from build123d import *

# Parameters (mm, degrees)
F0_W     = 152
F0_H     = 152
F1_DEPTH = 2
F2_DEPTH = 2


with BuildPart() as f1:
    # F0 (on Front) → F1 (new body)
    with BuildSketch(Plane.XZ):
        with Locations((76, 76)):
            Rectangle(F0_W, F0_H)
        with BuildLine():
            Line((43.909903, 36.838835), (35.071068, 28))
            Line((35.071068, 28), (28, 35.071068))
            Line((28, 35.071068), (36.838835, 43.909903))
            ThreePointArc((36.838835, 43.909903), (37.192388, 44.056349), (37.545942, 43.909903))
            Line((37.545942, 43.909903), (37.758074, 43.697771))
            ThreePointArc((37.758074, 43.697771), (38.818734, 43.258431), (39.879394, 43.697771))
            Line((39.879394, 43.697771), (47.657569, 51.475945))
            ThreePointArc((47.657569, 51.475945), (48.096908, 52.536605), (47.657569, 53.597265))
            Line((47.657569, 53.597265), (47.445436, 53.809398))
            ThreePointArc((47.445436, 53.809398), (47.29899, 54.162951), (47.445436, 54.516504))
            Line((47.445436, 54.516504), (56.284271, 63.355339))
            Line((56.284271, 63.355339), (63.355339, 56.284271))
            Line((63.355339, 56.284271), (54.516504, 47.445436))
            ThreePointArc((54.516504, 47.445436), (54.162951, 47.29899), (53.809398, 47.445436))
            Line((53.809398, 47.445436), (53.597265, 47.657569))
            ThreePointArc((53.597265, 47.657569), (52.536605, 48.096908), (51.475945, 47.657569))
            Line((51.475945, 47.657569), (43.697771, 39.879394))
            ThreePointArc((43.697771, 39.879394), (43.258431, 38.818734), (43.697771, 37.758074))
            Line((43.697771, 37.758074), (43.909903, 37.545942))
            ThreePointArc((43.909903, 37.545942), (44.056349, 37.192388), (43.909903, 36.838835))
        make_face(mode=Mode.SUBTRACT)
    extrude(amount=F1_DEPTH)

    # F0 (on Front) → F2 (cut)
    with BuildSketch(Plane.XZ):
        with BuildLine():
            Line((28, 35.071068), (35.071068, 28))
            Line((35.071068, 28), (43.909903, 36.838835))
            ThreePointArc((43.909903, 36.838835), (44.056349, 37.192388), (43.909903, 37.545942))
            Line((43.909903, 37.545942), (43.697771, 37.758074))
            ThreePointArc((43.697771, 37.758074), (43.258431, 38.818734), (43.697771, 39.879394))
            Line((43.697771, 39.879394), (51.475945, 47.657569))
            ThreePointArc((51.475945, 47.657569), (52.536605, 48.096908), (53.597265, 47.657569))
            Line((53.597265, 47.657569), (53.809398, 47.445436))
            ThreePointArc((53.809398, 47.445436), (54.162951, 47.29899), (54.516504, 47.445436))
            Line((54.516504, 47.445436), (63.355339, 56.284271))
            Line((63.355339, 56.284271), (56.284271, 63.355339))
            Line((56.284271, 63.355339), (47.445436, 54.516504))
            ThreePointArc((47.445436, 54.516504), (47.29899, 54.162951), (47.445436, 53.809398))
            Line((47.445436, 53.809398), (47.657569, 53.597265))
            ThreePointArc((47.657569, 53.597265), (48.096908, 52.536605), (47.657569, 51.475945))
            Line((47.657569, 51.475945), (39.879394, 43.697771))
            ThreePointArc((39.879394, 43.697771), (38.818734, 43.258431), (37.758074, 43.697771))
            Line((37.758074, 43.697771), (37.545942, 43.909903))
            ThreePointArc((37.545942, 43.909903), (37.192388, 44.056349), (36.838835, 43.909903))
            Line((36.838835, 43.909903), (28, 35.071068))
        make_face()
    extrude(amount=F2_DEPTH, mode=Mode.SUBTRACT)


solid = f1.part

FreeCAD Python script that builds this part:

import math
import FreeCAD as App
import Part
import Sketcher
from FreeCAD import Vector
Q = App.Units.Quantity

doc = App.newDocument("Part")
body = doc.addObject("PartDesign::Body", "Body")

sketch1 = body.newObject("Sketcher::SketchObject", "Sketch")
sketch1.AttachmentSupport = (doc.getObject("XZ_Plane"), [""])
sketch1.MapMode = "FlatFace"
sketch1.addGeometry([
    Part.LineSegment(Vector(0, 152, 0), Vector(0, 0, 0)),
    Part.LineSegment(Vector(0, 0, 0), Vector(152, 0, 0)),
    Part.LineSegment(Vector(152, 0, 0), Vector(152, 152, 0)),
    Part.LineSegment(Vector(152, 152, 0), Vector(0, 152, 0)),
    Part.ArcOfCircle(Part.Circle(Vector(43.556347, 37.192388, 0), Vector(0, 0, 1), 0.500002), math.radians(-44.999819), math.radians(44.999819)),
    Part.LineSegment(Vector(43.909903, 36.838835, 0), Vector(35.071068, 28, 0)),
    Part.LineSegment(Vector(35.071068, 28, 0), Vector(28, 35.071068, 0)),
    Part.LineSegment(Vector(28, 35.071068, 0), Vector(36.838835, 43.909903, 0)),
    Part.ArcOfCircle(Part.Circle(Vector(37.192388, 43.556347, 0), Vector(0, 0, 1), 0.500002), math.radians(45.000181), math.radians(134.999819)),
    Part.LineSegment(Vector(37.545942, 43.909903, 0), Vector(37.758074, 43.697771, 0)),
    Part.ArcOfCircle(Part.Circle(Vector(38.818734, 44.75843, 0), Vector(0, 0, 1), 1.499999), math.radians(-135.000022), math.radians(-44.999978)),
    Part.LineSegment(Vector(39.879394, 43.697771, 0), Vector(47.657569, 51.475945, 0)),
    Part.ArcOfCircle(Part.Circle(Vector(46.596906, 52.536605, 0), Vector(0, 0, 1), 1.500002), math.radians(-44.99993), math.radians(44.99993)),
    Part.LineSegment(Vector(47.657569, 53.597265, 0), Vector(47.445436, 53.809398, 0)),
    Part.ArcOfCircle(Part.Circle(Vector(47.798991, 54.162951, 0), Vector(0, 0, 1), 0.500001), math.radians(135.000124), math.radians(224.999876)),
    Part.LineSegment(Vector(47.445436, 54.516504, 0), Vector(56.284271, 63.355339, 0)),
    Part.LineSegment(Vector(56.284271, 63.355339, 0), Vector(63.355339, 56.284271, 0)),
    Part.LineSegment(Vector(63.355339, 56.284271, 0), Vector(54.516504, 47.445436, 0)),
    Part.ArcOfCircle(Part.Circle(Vector(54.162951, 47.798991, 0), Vector(0, 0, 1), 0.500001), math.radians(-134.999876), math.radians(-45.000124)),
    Part.LineSegment(Vector(53.809398, 47.445436, 0), Vector(53.597265, 47.657569, 0)),
    Part.ArcOfCircle(Part.Circle(Vector(52.536605, 46.596906, 0), Vector(0, 0, 1), 1.500002), math.radians(45.00007), math.radians(134.99993)),
    Part.LineSegment(Vector(51.475945, 47.657569, 0), Vector(43.697771, 39.879394, 0)),
    Part.ArcOfCircle(Part.Circle(Vector(44.75843, 38.818734, 0), Vector(0, 0, 1), 1.499999), math.radians(134.999978), math.radians(225.000022)),
    Part.LineSegment(Vector(43.697771, 37.758074, 0), Vector(43.909903, 37.545942, 0)),
], False)
sketch1.addConstraint([
    Sketcher.Constraint("Coincident", 0, 2, 1, 1),
    Sketcher.Constraint("Coincident", 1, 2, 2, 1),
    Sketcher.Constraint("Coincident", 2, 2, 3, 1),
    Sketcher.Constraint("Coincident", 3, 2, 0, 1),
    Sketcher.Constraint("Coincident", 4, 1, 5, 1),
    Sketcher.Constraint("Coincident", 5, 2, 6, 1),
    Sketcher.Constraint("Coincident", 6, 2, 7, 1),
    Sketcher.Constraint("Coincident", 7, 2, 8, 2),
    Sketcher.Constraint("Coincident", 8, 1, 9, 1),
    Sketcher.Constraint("Tangent", 9, 2, 10, 1),
    Sketcher.Constraint("Tangent", 10, 2, 11, 1),
    Sketcher.Constraint("Tangent", 11, 2, 12, 1),
    Sketcher.Constraint("Tangent", 12, 2, 13, 1),
    Sketcher.Constraint("Coincident", 13, 2, 14, 2),
    Sketcher.Constraint("Coincident", 14, 1, 15, 1),
    Sketcher.Constraint("Coincident", 15, 2, 16, 1),
    Sketcher.Constraint("Coincident", 16, 2, 17, 1),
    Sketcher.Constraint("Coincident", 17, 2, 18, 2),
    Sketcher.Constraint("Coincident", 18, 1, 19, 1),
    Sketcher.Constraint("Tangent", 19, 2, 20, 1),
    Sketcher.Constraint("Tangent", 20, 2, 21, 1),
    Sketcher.Constraint("Tangent", 21, 2, 22, 1),
    Sketcher.Constraint("Tangent", 22, 2, 23, 1),
    Sketcher.Constraint("Coincident", 23, 2, 4, 2),
    Sketcher.Constraint("Vertical", 0),
    Sketcher.Constraint("Horizontal", 1),
    Sketcher.Constraint("Vertical", 2),
    Sketcher.Constraint("Horizontal", 3),
    Sketcher.Constraint("Coincident", 0, 2, -1, 1),
    Sketcher.Constraint("Equal", 4, 8),
    Sketcher.Constraint("Equal", 8, 14),
    Sketcher.Constraint("Equal", 14, 18),
    Sketcher.Constraint("Equal", 12, 20),
    Sketcher.Constraint("Equal", 10, 22),
    Sketcher.Constraint("Perpendicular", 5, 6),
    Sketcher.Constraint("Perpendicular", 6, 7),
    Sketcher.Constraint("Perpendicular", 7, 9),
    Sketcher.Constraint("Perpendicular", 9, 11),
    Sketcher.Constraint("Perpendicular", 11, 13),
    Sketcher.Constraint("Perpendicular", 13, 15),
    Sketcher.Constraint("Perpendicular", 15, 16),
    Sketcher.Constraint("Perpendicular", 16, 17),
    Sketcher.Constraint("Perpendicular", 17, 19),
    Sketcher.Constraint("Perpendicular", 19, 21),
    Sketcher.Constraint("Perpendicular", 21, 23),
    Sketcher.Constraint("Horizontal", 7, 2, 8, 1),
    Sketcher.Constraint("Horizontal", 9, 2, 10, 2),
    Sketcher.Constraint("Horizontal", 17, 2, 18, 1),
    Sketcher.Constraint("Vertical", 13, 2, 14, 1),
    Sketcher.Constraint("Vertical", 4, 1, 23, 2),
    Sketcher.Constraint("Equal", 3, 0),
    Sketcher.Constraint("Equal", 5, 7),
    Sketcher.Constraint("Equal", 9, 13),
    Sketcher.Constraint("Equal", 7, 15),
    Sketcher.Constraint("Equal", 6, 16),
    Sketcher.Constraint("Equal", 15, 17),
    Sketcher.Constraint("Equal", 13, 19),
    Sketcher.Constraint("Equal", 11, 21),
    Sketcher.Constraint("Equal", 19, 23),
    Sketcher.Constraint("Radius", 4, Q("0.500002 mm")),
    Sketcher.Constraint("Radius", 10, Q("1.499999 mm")),
    Sketcher.Constraint("Radius", 12, Q("1.500002 mm")),
    Sketcher.Constraint("DistanceX", 1, 1, 1, 2, Q("152 mm")),
    Sketcher.Constraint("Distance", 6, Q("10 mm")),
    Sketcher.Constraint("Distance", 11, Q("11 mm")),
    Sketcher.Constraint("DistanceY", -1, 1, 5, 2, Q("28 mm")),
    Sketcher.Constraint("DistanceX", -1, 1, 6, 2, Q("28 mm")),
    Sketcher.Constraint("Distance", 5, Q("12.5 mm")),
    Sketcher.Constraint("Distance", 9, Q("0.3 mm")),
    Sketcher.Constraint("DistanceX", 12, 3, 20, 3, Q("5.939699 mm")),
    Sketcher.Constraint("DistanceY", 20, 3, 12, 3, Q("5.939699 mm")),
])
pad1 = body.newObject("PartDesign::Pad", "Pad")
pad1.Profile = sketch1
pad1.Length = 2

sketch2 = body.newObject("Sketcher::SketchObject", "Sketch001")
sketch2.AttachmentSupport = (doc.getObject("XZ_Plane"), [""])
sketch2.MapMode = "FlatFace"
sketch2.addGeometry([
    Part.LineSegment(Vector(28, 35.071068, 0), Vector(35.071068, 28, 0)),
    Part.LineSegment(Vector(35.071068, 28, 0), Vector(43.909903, 36.838835, 0)),
    Part.ArcOfCircle(Part.Circle(Vector(43.556347, 37.192388, 0), Vector(0, 0, 1), 0.500002), math.radians(-44.999819), math.radians(44.999819)),
    Part.LineSegment(Vector(43.909903, 37.545942, 0), Vector(43.697771, 37.758074, 0)),
    Part.ArcOfCircle(Part.Circle(Vector(44.75843, 38.818734, 0), Vector(0, 0, 1), 1.499999), math.radians(134.999978), math.radians(225.000022)),
    Part.LineSegment(Vector(43.697771, 39.879394, 0), Vector(51.475945, 47.657569, 0)),
    Part.ArcOfCircle(Part.Circle(Vector(52.536605, 46.596906, 0), Vector(0, 0, 1), 1.500002), math.radians(45.00007), math.radians(134.99993)),
    Part.LineSegment(Vector(53.597265, 47.657569, 0), Vector(53.809398, 47.445436, 0)),
    Part.ArcOfCircle(Part.Circle(Vector(54.162951, 47.798991, 0), Vector(0, 0, 1), 0.500001), math.radians(-134.999876), math.radians(-45.000124)),
    Part.LineSegment(Vector(54.516504, 47.445436, 0), Vector(63.355339, 56.284271, 0)),
    Part.LineSegment(Vector(63.355339, 56.284271, 0), Vector(56.284271, 63.355339, 0)),
    Part.LineSegment(Vector(56.284271, 63.355339, 0), Vector(47.445436, 54.516504, 0)),
    Part.ArcOfCircle(Part.Circle(Vector(47.798991, 54.162951, 0), Vector(0, 0, 1), 0.500001), math.radians(135.000124), math.radians(224.999876)),
    Part.LineSegment(Vector(47.445436, 53.809398, 0), Vector(47.657569, 53.597265, 0)),
    Part.ArcOfCircle(Part.Circle(Vector(46.596906, 52.536605, 0), Vector(0, 0, 1), 1.500002), math.radians(-44.99993), math.radians(44.99993)),
    Part.LineSegment(Vector(47.657569, 51.475945, 0), Vector(39.879394, 43.697771, 0)),
    Part.ArcOfCircle(Part.Circle(Vector(38.818734, 44.75843, 0), Vector(0, 0, 1), 1.499999), math.radians(-135.000022), math.radians(-44.999978)),
    Part.LineSegment(Vector(37.758074, 43.697771, 0), Vector(37.545942, 43.909903, 0)),
    Part.ArcOfCircle(Part.Circle(Vector(37.192388, 43.556347, 0), Vector(0, 0, 1), 0.500002), math.radians(45.000181), math.radians(134.999819)),
    Part.LineSegment(Vector(36.838835, 43.909903, 0), Vector(28, 35.071068, 0)),
], False)
sketch2.addConstraint([
    Sketcher.Constraint("Coincident", 0, 2, 1, 1),
    Sketcher.Constraint("Coincident", 1, 2, 2, 1),
    Sketcher.Constraint("Coincident", 2, 2, 3, 1),
    Sketcher.Constraint("Tangent", 3, 2, 4, 2),
    Sketcher.Constraint("Tangent", 4, 1, 5, 1),
    Sketcher.Constraint("Tangent", 5, 2, 6, 2),
    Sketcher.Constraint("Tangent", 6, 1, 7, 1),
    Sketcher.Constraint("Coincident", 7, 2, 8, 1),
    Sketcher.Constraint("Coincident", 8, 2, 9, 1),
    Sketcher.Constraint("Coincident", 9, 2, 10, 1),
    Sketcher.Constraint("Coincident", 10, 2, 11, 1),
    Sketcher.Constraint("Coincident", 11, 2, 12, 1),
    Sketcher.Constraint("Coincident", 12, 2, 13, 1),
    Sketcher.Constraint("Tangent", 13, 2, 14, 2),
    Sketcher.Constraint("Tangent", 14, 1, 15, 1),
    Sketcher.Constraint("Tangent", 15, 2, 16, 2),
    Sketcher.Constraint("Tangent", 16, 1, 17, 1),
    Sketcher.Constraint("Coincident", 17, 2, 18, 1),
    Sketcher.Constraint("Coincident", 18, 2, 19, 1),
    Sketcher.Constraint("Coincident", 19, 2, 0, 1),
    Sketcher.Constraint("Equal", 2, 8),
    Sketcher.Constraint("Equal", 8, 12),
    Sketcher.Constraint("Equal", 6, 14),
    Sketcher.Constraint("Equal", 4, 16),
    Sketcher.Constraint("Equal", 12, 18),
    Sketcher.Constraint("Perpendicular", 0, 1),
    Sketcher.Constraint("Perpendicular", 1, 3),
    Sketcher.Constraint("Perpendicular", 3, 5),
    Sketcher.Constraint("Perpendicular", 5, 7),
    Sketcher.Constraint("Perpendicular", 7, 9),
    Sketcher.Constraint("Perpendicular", 9, 10),
    Sketcher.Constraint("Perpendicular", 10, 11),
    Sketcher.Constraint("Perpendicular", 11, 13),
    Sketcher.Constraint("Perpendicular", 13, 15),
    Sketcher.Constraint("Perpendicular", 15, 17),
    Sketcher.Constraint("Perpendicular", 17, 19),
    Sketcher.Constraint("Horizontal", 5, 2, 6, 1),
    Sketcher.Constraint("Horizontal", 7, 2, 8, 2),
    Sketcher.Constraint("Horizontal", 17, 2, 18, 2),
    Sketcher.Constraint("Vertical", 1, 2, 2, 2),
    Sketcher.Constraint("Vertical", 11, 2, 12, 2),
    Sketcher.Constraint("Equal", 3, 7),
    Sketcher.Constraint("Equal", 1, 9),
    Sketcher.Constraint("Equal", 0, 10),
    Sketcher.Constraint("Equal", 9, 11),
    Sketcher.Constraint("Equal", 7, 13),
    Sketcher.Constraint("Equal", 5, 15),
    Sketcher.Constraint("Equal", 13, 17),
    Sketcher.Constraint("Equal", 11, 19),
    Sketcher.Constraint("Radius", 2, Q("0.500002 mm")),
    Sketcher.Constraint("Radius", 4, Q("1.499999 mm")),
    Sketcher.Constraint("Radius", 6, Q("1.500002 mm")),
    Sketcher.Constraint("Distance", 0, Q("10 mm")),
    Sketcher.Constraint("Distance", 5, Q("11 mm")),
    Sketcher.Constraint("DistanceY", -1, 1, 0, 2, Q("28 mm")),
    Sketcher.Constraint("DistanceX", -1, 1, 19, 2, Q("28 mm")),
    Sketcher.Constraint("Distance", 1, Q("12.5 mm")),
    Sketcher.Constraint("Distance", 3, Q("0.3 mm")),
    Sketcher.Constraint("DistanceX", 14, 3, 6, 3, Q("5.939699 mm")),
    Sketcher.Constraint("DistanceY", 6, 3, 14, 3, Q("5.939699 mm")),
])
pocket1 = body.newObject("PartDesign::Pocket", "Pocket")
pocket1.Profile = sketch2
pocket1.Length = 2
pocket1.Reversed = True

doc.recompute()
